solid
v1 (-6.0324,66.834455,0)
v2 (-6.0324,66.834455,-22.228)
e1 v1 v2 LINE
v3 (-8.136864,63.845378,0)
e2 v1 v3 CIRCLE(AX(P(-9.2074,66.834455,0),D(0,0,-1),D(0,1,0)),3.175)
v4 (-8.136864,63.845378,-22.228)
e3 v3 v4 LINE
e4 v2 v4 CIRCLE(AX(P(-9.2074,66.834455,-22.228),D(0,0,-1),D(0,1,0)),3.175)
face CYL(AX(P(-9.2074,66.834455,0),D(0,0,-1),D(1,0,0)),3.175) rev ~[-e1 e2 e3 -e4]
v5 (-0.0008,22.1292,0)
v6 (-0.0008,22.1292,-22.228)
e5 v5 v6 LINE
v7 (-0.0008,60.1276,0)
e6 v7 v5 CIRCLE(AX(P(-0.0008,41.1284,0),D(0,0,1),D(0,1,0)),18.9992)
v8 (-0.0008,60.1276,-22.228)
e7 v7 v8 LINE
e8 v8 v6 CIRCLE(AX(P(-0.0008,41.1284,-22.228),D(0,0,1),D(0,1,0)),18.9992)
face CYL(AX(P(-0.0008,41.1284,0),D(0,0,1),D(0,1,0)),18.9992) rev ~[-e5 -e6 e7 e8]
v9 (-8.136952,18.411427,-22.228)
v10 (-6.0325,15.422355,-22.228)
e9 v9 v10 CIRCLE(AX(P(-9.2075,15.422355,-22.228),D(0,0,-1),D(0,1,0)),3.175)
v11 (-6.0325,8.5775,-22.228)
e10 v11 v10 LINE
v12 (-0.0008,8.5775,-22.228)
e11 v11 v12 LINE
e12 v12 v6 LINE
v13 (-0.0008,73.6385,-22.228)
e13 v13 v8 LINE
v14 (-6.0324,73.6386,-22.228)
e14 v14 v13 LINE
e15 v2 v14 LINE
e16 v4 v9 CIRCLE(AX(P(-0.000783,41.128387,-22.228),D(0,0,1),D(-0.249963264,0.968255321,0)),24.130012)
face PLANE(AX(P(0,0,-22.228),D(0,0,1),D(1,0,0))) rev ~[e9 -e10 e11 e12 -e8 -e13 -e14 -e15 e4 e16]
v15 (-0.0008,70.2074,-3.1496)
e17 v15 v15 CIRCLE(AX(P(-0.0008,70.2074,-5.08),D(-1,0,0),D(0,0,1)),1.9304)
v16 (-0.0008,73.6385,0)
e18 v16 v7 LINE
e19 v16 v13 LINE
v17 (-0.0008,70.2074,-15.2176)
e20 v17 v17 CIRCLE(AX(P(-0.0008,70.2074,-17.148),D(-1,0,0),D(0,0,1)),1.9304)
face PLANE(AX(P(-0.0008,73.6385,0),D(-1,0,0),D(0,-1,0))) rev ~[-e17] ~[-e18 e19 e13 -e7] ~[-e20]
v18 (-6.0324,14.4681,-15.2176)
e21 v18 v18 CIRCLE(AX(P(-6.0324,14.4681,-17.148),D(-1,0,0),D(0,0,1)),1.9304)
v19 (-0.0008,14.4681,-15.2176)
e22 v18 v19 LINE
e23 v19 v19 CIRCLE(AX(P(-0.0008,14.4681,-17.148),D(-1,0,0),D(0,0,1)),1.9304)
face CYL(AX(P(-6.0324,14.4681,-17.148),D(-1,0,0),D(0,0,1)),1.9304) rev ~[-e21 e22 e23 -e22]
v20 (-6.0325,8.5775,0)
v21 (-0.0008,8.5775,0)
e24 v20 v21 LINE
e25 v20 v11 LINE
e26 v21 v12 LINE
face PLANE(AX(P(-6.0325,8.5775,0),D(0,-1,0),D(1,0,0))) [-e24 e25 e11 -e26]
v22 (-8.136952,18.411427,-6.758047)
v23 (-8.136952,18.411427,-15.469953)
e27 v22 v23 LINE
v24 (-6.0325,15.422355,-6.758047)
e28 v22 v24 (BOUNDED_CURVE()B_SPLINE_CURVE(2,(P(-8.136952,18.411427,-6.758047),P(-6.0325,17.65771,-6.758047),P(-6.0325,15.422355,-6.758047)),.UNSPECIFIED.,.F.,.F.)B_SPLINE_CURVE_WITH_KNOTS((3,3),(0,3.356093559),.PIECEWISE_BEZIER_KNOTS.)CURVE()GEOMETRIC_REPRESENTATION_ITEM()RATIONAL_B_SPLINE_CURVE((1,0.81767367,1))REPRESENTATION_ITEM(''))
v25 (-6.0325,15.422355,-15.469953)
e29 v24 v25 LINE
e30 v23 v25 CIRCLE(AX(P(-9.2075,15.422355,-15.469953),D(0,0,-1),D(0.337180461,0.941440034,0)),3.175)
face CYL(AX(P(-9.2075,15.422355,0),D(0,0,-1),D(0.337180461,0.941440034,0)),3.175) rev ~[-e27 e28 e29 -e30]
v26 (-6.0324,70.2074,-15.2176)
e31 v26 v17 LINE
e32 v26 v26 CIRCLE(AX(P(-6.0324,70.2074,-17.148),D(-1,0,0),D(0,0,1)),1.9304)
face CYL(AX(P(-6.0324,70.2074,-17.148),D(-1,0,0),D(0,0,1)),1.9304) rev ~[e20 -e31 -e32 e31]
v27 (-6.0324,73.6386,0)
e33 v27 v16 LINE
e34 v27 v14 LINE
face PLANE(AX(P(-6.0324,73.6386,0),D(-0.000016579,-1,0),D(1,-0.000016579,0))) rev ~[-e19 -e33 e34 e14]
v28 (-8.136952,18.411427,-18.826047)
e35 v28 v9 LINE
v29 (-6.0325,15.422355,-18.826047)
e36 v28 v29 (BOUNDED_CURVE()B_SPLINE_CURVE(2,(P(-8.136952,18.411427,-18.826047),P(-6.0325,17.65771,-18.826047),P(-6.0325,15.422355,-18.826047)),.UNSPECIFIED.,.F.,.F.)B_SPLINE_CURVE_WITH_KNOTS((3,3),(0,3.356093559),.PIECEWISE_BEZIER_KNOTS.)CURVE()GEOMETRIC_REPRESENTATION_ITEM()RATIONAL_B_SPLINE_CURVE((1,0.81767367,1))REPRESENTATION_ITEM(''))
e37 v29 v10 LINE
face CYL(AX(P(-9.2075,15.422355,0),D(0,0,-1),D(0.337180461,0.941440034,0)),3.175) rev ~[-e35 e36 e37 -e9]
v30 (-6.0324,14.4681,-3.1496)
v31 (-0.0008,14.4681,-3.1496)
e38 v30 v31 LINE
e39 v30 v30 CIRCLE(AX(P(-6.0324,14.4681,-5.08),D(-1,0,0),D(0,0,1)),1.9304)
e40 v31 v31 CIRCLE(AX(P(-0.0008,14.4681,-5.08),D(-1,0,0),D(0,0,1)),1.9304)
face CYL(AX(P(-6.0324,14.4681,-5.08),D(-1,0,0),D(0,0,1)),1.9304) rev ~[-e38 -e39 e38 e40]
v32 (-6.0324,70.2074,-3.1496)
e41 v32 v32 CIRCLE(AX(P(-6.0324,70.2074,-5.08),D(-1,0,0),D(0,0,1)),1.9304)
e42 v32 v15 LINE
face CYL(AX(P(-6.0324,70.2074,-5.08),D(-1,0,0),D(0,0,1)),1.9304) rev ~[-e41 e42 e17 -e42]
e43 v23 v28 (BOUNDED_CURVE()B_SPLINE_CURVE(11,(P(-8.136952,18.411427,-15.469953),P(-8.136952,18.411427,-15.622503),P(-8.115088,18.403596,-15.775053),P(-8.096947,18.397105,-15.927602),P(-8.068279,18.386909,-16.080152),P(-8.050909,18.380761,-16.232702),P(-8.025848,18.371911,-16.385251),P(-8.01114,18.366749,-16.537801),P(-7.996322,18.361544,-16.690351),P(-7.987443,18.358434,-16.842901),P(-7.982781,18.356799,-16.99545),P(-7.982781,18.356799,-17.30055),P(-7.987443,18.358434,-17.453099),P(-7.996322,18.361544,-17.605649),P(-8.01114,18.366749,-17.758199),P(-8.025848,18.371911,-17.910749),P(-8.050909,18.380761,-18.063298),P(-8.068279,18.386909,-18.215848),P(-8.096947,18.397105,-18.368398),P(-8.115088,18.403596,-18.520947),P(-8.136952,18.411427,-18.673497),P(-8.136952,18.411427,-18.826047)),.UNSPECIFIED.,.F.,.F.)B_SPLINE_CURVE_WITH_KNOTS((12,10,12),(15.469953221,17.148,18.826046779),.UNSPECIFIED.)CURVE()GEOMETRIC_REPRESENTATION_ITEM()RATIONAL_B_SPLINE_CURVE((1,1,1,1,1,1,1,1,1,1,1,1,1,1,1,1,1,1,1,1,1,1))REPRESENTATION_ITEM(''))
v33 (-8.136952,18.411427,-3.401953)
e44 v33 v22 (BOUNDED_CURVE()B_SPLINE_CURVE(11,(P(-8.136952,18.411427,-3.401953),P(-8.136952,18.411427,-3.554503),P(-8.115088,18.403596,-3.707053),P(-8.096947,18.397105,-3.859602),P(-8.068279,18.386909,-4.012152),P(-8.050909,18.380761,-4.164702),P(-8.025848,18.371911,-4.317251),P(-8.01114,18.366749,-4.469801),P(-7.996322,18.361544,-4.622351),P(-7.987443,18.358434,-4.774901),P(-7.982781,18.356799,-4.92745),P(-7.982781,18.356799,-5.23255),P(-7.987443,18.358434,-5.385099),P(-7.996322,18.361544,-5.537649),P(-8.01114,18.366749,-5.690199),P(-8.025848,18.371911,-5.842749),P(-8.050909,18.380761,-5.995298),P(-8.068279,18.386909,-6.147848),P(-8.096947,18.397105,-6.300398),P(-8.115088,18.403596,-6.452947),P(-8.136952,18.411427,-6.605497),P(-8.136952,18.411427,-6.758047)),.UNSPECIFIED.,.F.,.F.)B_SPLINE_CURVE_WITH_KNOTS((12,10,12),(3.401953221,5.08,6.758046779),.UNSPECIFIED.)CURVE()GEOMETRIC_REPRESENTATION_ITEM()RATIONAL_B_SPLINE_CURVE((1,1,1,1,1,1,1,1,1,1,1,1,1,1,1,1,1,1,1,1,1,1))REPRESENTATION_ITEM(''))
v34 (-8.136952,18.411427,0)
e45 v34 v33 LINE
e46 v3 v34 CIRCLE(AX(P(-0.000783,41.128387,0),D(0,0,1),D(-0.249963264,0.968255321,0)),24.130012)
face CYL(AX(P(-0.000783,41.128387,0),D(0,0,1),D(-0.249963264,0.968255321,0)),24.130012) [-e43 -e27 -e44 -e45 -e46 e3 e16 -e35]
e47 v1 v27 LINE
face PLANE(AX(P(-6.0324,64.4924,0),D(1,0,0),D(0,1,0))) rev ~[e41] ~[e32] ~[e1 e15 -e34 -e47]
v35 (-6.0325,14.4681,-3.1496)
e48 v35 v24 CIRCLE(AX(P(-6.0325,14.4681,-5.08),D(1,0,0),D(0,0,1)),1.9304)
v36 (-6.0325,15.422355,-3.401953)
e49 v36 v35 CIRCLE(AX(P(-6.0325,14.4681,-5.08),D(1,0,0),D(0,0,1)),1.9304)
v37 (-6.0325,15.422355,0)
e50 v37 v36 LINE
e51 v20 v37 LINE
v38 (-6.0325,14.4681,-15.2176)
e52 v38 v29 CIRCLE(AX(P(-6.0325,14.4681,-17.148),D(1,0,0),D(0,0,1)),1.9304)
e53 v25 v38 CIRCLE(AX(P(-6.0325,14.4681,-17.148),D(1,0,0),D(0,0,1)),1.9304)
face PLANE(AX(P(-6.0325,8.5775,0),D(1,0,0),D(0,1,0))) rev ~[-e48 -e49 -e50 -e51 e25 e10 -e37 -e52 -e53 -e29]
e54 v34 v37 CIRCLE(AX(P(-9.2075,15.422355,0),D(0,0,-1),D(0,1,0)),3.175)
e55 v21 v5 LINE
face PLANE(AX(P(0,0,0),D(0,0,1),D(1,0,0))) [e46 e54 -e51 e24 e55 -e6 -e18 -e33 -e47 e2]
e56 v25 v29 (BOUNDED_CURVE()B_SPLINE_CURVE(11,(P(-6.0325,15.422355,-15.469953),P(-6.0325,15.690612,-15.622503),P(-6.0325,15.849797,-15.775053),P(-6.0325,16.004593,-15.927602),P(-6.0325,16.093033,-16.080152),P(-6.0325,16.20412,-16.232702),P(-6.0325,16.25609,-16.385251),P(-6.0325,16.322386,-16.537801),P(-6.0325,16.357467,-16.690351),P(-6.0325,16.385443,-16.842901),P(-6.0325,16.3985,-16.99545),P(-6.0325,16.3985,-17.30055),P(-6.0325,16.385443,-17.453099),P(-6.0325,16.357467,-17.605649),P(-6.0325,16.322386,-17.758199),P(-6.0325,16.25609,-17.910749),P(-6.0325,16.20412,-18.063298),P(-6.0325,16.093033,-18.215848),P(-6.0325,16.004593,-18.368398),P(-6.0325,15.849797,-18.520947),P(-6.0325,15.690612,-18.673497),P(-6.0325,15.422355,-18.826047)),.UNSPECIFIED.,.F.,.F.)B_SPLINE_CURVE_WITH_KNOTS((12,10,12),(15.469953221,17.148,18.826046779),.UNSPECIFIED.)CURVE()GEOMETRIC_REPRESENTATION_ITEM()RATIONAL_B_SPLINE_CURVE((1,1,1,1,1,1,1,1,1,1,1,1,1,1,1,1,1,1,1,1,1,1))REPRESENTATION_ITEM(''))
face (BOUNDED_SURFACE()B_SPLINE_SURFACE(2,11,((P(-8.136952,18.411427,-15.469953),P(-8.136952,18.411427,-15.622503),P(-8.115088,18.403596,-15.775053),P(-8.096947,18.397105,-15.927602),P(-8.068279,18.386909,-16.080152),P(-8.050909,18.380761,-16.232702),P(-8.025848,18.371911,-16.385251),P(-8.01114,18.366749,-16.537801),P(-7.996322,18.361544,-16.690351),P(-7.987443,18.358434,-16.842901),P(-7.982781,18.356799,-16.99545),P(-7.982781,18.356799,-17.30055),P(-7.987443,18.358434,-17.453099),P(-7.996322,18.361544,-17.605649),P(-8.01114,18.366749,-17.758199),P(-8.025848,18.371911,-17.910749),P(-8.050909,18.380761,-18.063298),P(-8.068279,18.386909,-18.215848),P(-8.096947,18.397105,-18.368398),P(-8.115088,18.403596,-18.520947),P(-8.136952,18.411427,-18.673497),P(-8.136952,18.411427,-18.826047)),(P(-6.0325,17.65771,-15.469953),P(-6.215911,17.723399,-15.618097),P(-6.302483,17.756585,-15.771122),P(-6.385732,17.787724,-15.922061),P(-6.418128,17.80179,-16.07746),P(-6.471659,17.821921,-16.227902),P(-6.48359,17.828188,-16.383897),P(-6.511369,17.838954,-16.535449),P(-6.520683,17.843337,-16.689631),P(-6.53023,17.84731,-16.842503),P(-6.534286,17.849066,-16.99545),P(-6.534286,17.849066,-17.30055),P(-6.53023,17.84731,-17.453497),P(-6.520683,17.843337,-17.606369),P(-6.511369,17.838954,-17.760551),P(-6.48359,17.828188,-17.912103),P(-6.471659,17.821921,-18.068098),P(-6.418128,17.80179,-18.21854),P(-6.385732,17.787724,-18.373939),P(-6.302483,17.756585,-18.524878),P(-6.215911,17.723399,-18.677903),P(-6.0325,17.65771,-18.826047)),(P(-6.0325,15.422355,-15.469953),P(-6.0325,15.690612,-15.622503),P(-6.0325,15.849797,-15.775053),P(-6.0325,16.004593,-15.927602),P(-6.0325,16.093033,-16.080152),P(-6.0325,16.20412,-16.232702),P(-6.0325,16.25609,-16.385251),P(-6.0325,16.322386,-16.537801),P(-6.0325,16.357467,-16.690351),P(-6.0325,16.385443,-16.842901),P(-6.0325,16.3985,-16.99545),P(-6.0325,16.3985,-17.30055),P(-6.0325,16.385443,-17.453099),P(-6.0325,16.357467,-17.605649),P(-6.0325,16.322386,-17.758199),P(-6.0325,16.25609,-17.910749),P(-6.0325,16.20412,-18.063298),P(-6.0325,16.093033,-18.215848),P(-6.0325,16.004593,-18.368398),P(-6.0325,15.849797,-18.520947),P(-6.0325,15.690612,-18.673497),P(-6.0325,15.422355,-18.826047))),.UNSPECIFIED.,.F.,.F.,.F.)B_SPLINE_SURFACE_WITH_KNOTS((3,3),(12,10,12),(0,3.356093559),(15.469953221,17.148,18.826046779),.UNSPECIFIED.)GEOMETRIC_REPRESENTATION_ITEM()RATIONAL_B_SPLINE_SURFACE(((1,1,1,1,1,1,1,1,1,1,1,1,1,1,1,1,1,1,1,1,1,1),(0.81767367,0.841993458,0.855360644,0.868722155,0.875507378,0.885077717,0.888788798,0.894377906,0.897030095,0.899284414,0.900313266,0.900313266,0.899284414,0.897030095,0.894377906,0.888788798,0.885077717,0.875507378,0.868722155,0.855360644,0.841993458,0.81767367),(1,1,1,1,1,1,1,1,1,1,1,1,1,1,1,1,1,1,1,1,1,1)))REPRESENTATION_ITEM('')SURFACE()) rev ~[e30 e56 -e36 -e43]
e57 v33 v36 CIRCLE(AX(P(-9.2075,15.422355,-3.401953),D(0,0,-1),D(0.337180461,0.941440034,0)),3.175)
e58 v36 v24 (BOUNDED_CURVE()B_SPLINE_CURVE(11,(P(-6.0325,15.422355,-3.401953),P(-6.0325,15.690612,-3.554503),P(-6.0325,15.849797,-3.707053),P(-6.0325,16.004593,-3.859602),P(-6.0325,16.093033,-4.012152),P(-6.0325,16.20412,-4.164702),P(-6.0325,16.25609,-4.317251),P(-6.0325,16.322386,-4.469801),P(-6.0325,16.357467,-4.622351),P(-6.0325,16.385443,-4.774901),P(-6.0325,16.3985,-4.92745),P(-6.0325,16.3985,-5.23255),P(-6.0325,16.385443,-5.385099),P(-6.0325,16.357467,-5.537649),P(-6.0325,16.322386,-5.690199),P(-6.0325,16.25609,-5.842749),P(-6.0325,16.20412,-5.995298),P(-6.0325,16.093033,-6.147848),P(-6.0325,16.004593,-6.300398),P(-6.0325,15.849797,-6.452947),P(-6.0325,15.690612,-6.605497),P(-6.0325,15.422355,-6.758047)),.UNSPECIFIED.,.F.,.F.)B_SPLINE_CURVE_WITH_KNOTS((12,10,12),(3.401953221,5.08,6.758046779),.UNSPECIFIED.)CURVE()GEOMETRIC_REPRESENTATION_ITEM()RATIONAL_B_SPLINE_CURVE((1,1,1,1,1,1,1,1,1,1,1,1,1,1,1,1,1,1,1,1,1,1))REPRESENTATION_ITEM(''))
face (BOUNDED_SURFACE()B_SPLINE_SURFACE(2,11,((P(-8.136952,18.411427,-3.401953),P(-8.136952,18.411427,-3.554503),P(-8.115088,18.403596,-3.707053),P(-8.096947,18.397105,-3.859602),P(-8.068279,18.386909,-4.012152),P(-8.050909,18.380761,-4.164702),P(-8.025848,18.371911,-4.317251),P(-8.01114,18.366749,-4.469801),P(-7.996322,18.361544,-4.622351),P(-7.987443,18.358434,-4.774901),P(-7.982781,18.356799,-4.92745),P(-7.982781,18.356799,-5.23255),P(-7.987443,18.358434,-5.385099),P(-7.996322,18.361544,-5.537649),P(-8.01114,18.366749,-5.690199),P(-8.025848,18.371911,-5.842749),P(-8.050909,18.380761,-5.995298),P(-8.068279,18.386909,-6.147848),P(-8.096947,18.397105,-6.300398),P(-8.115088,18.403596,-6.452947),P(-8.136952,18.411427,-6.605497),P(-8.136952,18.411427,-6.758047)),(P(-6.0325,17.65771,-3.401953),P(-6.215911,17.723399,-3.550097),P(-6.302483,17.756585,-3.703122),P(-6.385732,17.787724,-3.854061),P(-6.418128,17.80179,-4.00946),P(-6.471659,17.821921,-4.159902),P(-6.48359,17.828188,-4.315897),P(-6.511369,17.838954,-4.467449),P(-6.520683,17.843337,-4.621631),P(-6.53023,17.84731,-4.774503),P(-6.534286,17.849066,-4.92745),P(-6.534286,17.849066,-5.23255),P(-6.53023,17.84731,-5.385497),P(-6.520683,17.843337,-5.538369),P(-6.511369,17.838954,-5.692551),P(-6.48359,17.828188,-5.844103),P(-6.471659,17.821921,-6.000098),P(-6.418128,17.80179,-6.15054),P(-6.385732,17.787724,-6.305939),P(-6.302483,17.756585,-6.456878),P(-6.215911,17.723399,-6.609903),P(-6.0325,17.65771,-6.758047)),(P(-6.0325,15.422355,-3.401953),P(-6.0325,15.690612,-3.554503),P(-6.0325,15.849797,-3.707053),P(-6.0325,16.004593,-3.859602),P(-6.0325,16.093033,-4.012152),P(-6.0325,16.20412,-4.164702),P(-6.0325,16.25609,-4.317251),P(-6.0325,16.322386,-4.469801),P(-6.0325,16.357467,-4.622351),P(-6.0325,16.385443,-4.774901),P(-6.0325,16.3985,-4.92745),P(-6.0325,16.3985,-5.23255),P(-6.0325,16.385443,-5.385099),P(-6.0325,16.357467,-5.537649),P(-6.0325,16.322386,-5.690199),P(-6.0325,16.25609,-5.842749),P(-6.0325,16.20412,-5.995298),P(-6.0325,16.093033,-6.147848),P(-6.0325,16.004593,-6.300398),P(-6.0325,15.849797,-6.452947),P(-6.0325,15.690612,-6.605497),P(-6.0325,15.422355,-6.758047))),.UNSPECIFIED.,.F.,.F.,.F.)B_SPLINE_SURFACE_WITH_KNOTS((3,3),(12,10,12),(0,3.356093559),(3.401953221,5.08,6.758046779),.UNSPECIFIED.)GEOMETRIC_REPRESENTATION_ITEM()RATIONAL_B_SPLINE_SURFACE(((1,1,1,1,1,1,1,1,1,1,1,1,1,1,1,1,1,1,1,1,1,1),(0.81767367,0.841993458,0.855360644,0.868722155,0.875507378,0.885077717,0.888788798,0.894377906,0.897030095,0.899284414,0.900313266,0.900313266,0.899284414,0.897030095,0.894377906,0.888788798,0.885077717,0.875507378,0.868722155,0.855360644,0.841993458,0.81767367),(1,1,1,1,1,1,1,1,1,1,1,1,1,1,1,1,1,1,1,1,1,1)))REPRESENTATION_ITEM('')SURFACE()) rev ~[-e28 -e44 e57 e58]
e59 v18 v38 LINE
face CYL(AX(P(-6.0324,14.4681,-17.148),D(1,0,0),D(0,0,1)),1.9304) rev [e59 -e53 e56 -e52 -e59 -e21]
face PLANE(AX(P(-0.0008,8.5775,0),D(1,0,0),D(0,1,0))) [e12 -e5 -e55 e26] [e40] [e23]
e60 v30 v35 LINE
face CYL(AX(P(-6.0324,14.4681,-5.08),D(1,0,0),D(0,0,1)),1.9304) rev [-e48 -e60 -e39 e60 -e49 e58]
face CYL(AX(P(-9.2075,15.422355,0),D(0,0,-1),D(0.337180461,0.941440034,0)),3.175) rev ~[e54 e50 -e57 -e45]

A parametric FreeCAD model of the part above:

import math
import FreeCAD as App
import Part
import Sketcher
from FreeCAD import Vector
Q = App.Units.Quantity


def edges_at(feature, points):
    """Names of the edges that pass closest to the given points."""
    edges = feature.Shape.Edges
    near = lambda p: min(range(len(edges)), key=lambda i: edges[i].distToShape(Part.Vertex(*p))[0])
    return sorted({f"Edge{near(p) + 1}" for p in points})

doc = App.newDocument("Part")
body = doc.addObject("PartDesign::Body", "Body")

sketch1 = doc.addObject("Sketcher::SketchObject", "Sketch")
body.addObject(sketch1)
sketch1.AttachmentSupport = (doc.XY_Plane, [""])
sketch1.MapMode = "FlatFace"
sketch1.addGeometry([
    Part.LineSegment(Vector(-6.0324, 73.6386, 0), Vector(-6.0324, 64.4924, 0)),
    Part.ArcOfCircle(Part.Circle(Vector(-0.0008, 41.1284, 0), Vector(0, 0, 1), 24.129996), math.radians(104.475308), math.radians(255.524462)),
    Part.LineSegment(Vector(-6.0325, 17.7644, 0), Vector(-6.0325, 8.5775, 0)),
    Part.LineSegment(Vector(-6.0325, 8.5775, 0), Vector(-0.0008, 8.5775, 0)),
    Part.LineSegment(Vector(-0.0008, 8.5775, 0), Vector(-0.0008, 22.1292, 0)),
    Part.ArcOfCircle(Part.Circle(Vector(-0.0008, 41.1284, 0), Vector(0, 0, 1), 18.9992), math.radians(90), math.radians(270)),
    Part.LineSegment(Vector(-0.0008, 60.1276, 0), Vector(-0.0008, 73.6385, 0)),
    Part.LineSegment(Vector(-0.0008, 73.6385, 0), Vector(-6.0324, 73.6386, 0)),
], False)
sketch1.addConstraint([
    Sketcher.Constraint("Coincident", 0, 2, 1, 1),
    Sketcher.Constraint("Coincident", 1, 2, 2, 1),
    Sketcher.Constraint("Coincident", 2, 2, 3, 1),
    Sketcher.Constraint("Coincident", 3, 2, 4, 1),
    Sketcher.Constraint("Coincident", 4, 2, 5, 2),
    Sketcher.Constraint("Coincident", 5, 1, 6, 1),
    Sketcher.Constraint("Coincident", 6, 2, 7, 1),
    Sketcher.Constraint("Coincident", 7, 2, 0, 1),
    Sketcher.Constraint("Vertical", 0),
    Sketcher.Constraint("Vertical", 2),
    Sketcher.Constraint("Horizontal", 3),
    Sketcher.Constraint("Vertical", 4),
    Sketcher.Constraint("Vertical", 6),
    Sketcher.Constraint("Horizontal", 7),
    Sketcher.Constraint("Coincident", 5, 3, 1, 3),
    Sketcher.Constraint("Vertical", 0, 2, 1, 2),
    Sketcher.Constraint("Vertical", 5, 3, 3, 2),
    Sketcher.Constraint("Vertical", 4, 2, 5, 1),
    Sketcher.Constraint("Radius", 1, Q("0.95 in")),
    Sketcher.Constraint("Radius", 5, Q("0.748 in")),
    Sketcher.Constraint("DistanceX", 3, 1, 3, 2, 6.0317),
    Sketcher.Constraint("DistanceY", 2, 2, 2, 1, Q("0.3617 in")),
    Sketcher.Constraint("DistanceY", 0, 2, 0, 1, 9.1462),
    Sketcher.Constraint("DistanceX", 0, 2, -1, 1, Q("0.2375 in")),
    Sketcher.Constraint("DistanceY", -1, 1, 2, 2, Q("0.3377 in")),
])
pad1 = doc.addObject("PartDesign::Pad", "Pad")
body.addObject(pad1)
pad1.Profile = sketch1
pad1.Length = 22.228
pad1.Reversed = True

sketch2 = doc.addObject("Sketcher::SketchObject", "Sketch001")
body.addObject(sketch2)
sketch2.AttachmentSupport = (doc.YZ_Plane, [""])
sketch2.MapMode = "FlatFace"
sketch2.AttachmentOffset = App.Placement(Vector(0, 0, -0.2374961 * 25.4), App.Rotation())
sketch2.addGeometry([
    Part.Circle(Vector(70.2074, -17.148, 0), Vector(0, 0, 1), 1.9304),
    Part.Circle(Vector(70.2074, -5.08, 0), Vector(0, 0, 1), 1.9304),
    Part.Circle(Vector(14.4681, -5.08, 0), Vector(0, 0, 1), 1.9304),
    Part.Circle(Vector(14.4681, -17.148, 0), Vector(0, 0, 1), 1.9304),
], False)
sketch2.addConstraint([
    Sketcher.Constraint("Equal", 0, 1),
    Sketcher.Constraint("Equal", 1, 2),
    Sketcher.Constraint("Equal", 2, 3),
    Sketcher.Constraint("Horizontal", 1, 3, 2, 3),
    Sketcher.Constraint("Horizontal", 0, 3, 3, 3),
    Sketcher.Constraint("Vertical", 0, 3, 1, 3),
    Sketcher.Constraint("Vertical", 2, 3, 3, 3),
    Sketcher.Constraint("Diameter", 0, Q("0.152 in")),
    Sketcher.Constraint("DistanceY", 1, 3, -1, 1, Q("0.2 in")),
    Sketcher.Constraint("DistanceX", -1, 1, 2, 3, Q("0.5696 in")),
    Sketcher.Constraint("DistanceX", -1, 1, 0, 3, 70.2074),
    Sketcher.Constraint("DistanceY", 0, 3, -1, 1, 17.148),
])
pocket1 = doc.addObject("PartDesign::Pocket", "Pocket")
body.addObject(pocket1)
pocket1.Profile = sketch2
pocket1.Length = Q("1 in")
pocket1.Midplane = True
doc.recompute()

fillet = doc.addObject("PartDesign::Fillet", "Fillet")
body.addObject(fillet)
fillet.Base = (pocket1, edges_at(pocket1, [(-6.032, 64.492, -11.114)]))
fillet.Radius = Q("0.125 in")
doc.recompute()

fillet2 = doc.addObject("PartDesign::Fillet", "Fillet001")
body.addObject(fillet2)
fillet2.Base = (fillet, edges_at(fillet, [(-6.032, 17.764, -11.114)]))
fillet2.Radius = Q("0.125 in")

doc.recompute()
